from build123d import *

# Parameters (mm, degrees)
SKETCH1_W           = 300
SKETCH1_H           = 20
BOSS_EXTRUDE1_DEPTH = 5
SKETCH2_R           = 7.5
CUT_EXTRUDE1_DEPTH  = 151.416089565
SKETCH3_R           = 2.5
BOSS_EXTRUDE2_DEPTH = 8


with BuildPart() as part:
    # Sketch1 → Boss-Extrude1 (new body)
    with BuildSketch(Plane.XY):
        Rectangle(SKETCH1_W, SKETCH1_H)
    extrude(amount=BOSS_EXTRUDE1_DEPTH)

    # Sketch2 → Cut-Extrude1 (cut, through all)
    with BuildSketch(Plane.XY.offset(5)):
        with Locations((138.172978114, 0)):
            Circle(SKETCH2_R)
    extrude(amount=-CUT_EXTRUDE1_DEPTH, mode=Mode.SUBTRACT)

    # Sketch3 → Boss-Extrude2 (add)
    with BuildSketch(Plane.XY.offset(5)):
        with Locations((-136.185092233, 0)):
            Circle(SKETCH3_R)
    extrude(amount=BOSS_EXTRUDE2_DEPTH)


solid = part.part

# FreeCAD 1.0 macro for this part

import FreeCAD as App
import Part
import Sketcher
from FreeCAD import Vector
Q = App.Units.Quantity

doc = App.newDocument("Part")
body = doc.addObject("PartDesign::Body", "Body")

# Sketch on XY plane
sketch1 = doc.addObject("Sketcher::SketchObject", "Sketch")
body.addObject(sketch1)
sketch1.AttachmentSupport = (doc.XY_Plane, [""])
sketch1.MapMode = "FlatFace"
sketch1.addGeometry(Part.LineSegment(Vector(-150, 10, 0), Vector(-150, -10, 0)), False)
sketch1.addGeometry(Part.LineSegment(Vector(-150, -10, 0), Vector(150, -10, 0)), False)
sketch1.addGeometry(Part.LineSegment(Vector(150, -10, 0), Vector(150, 10, 0)), False)
sketch1.addGeometry(Part.LineSegment(Vector(150, 10, 0), Vector(-150, 10, 0)), False)
sketch1.addConstraint(Sketcher.Constraint("Coincident", 0, 2, 1, 1))
sketch1.addConstraint(Sketcher.Constraint("Coincident", 1, 2, 2, 1))
sketch1.addConstraint(Sketcher.Constraint("Coincident", 2, 2, 3, 1))
sketch1.addConstraint(Sketcher.Constraint("Coincident", 3, 2, 0, 1))
sketch1.addConstraint(Sketcher.Constraint("Vertical", 0))
sketch1.addConstraint(Sketcher.Constraint("Horizontal", 1))
sketch1.addConstraint(Sketcher.Constraint("Vertical", 2))
sketch1.addConstraint(Sketcher.Constraint("Horizontal", 3))
sketch1.addConstraint(Sketcher.Constraint("Symmetric", 0, 2, 2, 2, -1, 1))
sketch1.addConstraint(Sketcher.Constraint("DistanceX", 1, 1, 1, 2, Q("300 mm")))
sketch1.addConstraint(Sketcher.Constraint("DistanceY", 0, 2, 0, 1, Q("20 mm")))
pad1 = doc.addObject("PartDesign::Pad", "Pad")
body.addObject(pad1)
pad1.Profile = sketch1
pad1.Length = 5

# Sketch on XY plane
sketch2 = doc.addObject("Sketcher::SketchObject", "Sketch001")
body.addObject(sketch2)
sketch2.AttachmentSupport = (doc.XY_Plane, [""])
sketch2.MapMode = "FlatFace"
sketch2.AttachmentOffset = App.Placement(Vector(0, 0, 5), App.Rotation())
sketch2.addGeometry(Part.Circle(Vector(138, 0, 0), Vector(0, 0, 1), 8), False)
sketch2.addConstraint(Sketcher.Constraint("PointOnObject", 0, 3, -1))
sketch2.addConstraint(Sketcher.Constraint("Diameter", 0, Q("15 mm")))
sketch2.addConstraint(Sketcher.Constraint("DistanceX", -1, 1, 0, 3, Q("138.172978 mm")))
pocket1 = doc.addObject("PartDesign::Pocket", "Pocket")
body.addObject(pocket1)
pocket1.Profile = sketch2
pocket1.Type = "ThroughAll"

# Sketch on XY plane
sketch3 = doc.addObject("Sketcher::SketchObject", "Sketch002")
body.addObject(sketch3)
sketch3.AttachmentSupport = (doc.XY_Plane, [""])
sketch3.MapMode = "FlatFace"
sketch3.AttachmentOffset = App.Placement(Vector(0, 0, 5), App.Rotation())
sketch3.addGeometry(Part.Circle(Vector(-136.2, 0, 0), Vector(0, 0, 1), 2.5), False)
sketch3.addConstraint(Sketcher.Constraint("PointOnObject", 0, 3, -1))
sketch3.addConstraint(Sketcher.Constraint("Diameter", 0, Q("5 mm")))
sketch3.addConstraint(Sketcher.Constraint("DistanceX", 0, 3, -1, 1, Q("136.185092 mm")))
pad2 = doc.addObject("PartDesign::Pad", "Pad001")
body.addObject(pad2)
pad2.Profile = sketch3
pad2.Length = 8

doc.recompute()
